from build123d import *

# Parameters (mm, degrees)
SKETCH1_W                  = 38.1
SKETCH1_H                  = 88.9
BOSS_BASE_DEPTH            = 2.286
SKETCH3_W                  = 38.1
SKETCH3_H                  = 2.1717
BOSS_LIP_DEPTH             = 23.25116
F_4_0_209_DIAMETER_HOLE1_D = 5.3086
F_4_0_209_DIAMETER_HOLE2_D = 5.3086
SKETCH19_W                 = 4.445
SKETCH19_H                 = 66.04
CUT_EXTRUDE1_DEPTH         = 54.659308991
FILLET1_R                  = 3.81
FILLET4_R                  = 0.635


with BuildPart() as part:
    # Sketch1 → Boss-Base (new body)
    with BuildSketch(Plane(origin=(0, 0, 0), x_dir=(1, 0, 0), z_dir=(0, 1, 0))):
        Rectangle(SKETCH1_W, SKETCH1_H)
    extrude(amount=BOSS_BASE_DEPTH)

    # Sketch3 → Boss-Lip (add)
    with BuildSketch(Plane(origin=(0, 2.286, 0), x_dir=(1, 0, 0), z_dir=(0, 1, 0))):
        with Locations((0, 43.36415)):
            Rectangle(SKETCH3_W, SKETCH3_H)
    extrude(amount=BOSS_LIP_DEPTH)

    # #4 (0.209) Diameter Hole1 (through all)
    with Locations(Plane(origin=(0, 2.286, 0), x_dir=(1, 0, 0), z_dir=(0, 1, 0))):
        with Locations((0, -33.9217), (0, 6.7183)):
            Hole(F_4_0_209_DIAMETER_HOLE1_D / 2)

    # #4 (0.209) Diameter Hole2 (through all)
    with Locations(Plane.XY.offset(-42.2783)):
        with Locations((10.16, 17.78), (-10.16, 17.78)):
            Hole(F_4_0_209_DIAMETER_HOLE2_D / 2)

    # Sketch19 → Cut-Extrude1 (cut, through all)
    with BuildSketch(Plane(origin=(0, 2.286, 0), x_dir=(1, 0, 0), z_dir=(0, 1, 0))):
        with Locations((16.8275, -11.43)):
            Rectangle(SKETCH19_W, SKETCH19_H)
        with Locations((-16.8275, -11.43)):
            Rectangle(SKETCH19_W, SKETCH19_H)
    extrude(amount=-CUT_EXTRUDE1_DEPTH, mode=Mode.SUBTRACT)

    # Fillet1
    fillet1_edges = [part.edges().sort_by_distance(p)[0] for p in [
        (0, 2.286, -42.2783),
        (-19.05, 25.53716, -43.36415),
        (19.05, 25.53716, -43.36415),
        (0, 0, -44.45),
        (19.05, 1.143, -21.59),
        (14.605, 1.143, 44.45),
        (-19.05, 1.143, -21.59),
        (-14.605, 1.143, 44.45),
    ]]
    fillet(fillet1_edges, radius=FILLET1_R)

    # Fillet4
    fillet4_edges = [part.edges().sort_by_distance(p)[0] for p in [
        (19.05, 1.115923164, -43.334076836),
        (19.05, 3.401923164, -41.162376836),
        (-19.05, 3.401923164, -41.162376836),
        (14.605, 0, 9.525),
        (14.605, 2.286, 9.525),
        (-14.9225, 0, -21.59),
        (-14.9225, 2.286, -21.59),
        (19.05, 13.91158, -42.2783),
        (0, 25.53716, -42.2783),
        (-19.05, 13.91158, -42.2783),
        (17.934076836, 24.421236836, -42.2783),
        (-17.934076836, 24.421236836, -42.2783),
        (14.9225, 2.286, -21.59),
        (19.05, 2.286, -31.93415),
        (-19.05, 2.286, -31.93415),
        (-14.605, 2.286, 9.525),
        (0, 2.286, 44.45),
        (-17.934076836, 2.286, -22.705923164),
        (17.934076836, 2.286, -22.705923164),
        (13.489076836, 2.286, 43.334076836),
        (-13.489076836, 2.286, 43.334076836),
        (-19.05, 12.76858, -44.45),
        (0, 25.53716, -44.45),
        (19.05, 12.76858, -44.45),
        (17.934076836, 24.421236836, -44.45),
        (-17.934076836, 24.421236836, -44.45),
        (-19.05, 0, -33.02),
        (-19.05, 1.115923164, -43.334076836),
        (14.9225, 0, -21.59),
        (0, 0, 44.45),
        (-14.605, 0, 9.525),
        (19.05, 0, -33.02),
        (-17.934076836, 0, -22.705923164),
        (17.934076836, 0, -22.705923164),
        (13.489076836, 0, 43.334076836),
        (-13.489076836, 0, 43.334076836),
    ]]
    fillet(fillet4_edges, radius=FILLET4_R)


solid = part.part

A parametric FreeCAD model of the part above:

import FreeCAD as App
import Part
import Sketcher
Q = App.Units.Quantity


def edges_at(feature, points):
    """Names of the edges that pass closest to the given points."""
    edges = feature.Shape.Edges
    near = lambda p: min(range(len(edges)), key=lambda i: edges[i].distToShape(Part.Vertex(*p))[0])
    return sorted({f"Edge{near(p) + 1}" for p in points})


def add_polygon(sketch, points):
    """Adds a closed chain of lines whose ends are joined by coincident constraints."""
    first, n = sketch.GeometryCount, len(points)
    for a, b in zip(points, points[1:] + points[:1]):
        sketch.addGeometry(Part.LineSegment(App.Vector(*a, 0), App.Vector(*b, 0)), False)
    for i in range(n):
        sketch.addConstraint(Sketcher.Constraint("Coincident", first + i, 2, first + (i + 1) % n, 1))

doc = App.newDocument("Part")
body = doc.addObject("PartDesign::Body", "Body")

# Sketch on XZ plane
sketch1 = doc.addObject("Sketcher::SketchObject", "Sketch")
body.addObject(sketch1)
sketch1.AttachmentSupport = (doc.XZ_Plane, [""])
sketch1.MapMode = "FlatFace"
add_polygon(sketch1, [(-19, -44), (-19, 44), (19, 44), (19, -44)])  # lines 0-3
sketch1.addConstraint(Sketcher.Constraint("Vertical", 0))
sketch1.addConstraint(Sketcher.Constraint("Horizontal", 1))
sketch1.addConstraint(Sketcher.Constraint("Vertical", 2))
sketch1.addConstraint(Sketcher.Constraint("Horizontal", 3))
sketch1.addConstraint(Sketcher.Constraint("Symmetric", 0, 2, 2, 2, -1, 1))
sketch1.addConstraint(Sketcher.Constraint("DistanceX", 1, 1, 1, 2, Q("1.5 in")))
sketch1.addConstraint(Sketcher.Constraint("DistanceY", 0, 1, 0, 2, Q("3.5 in")))
pad1 = doc.addObject("PartDesign::Pad", "Pad")
body.addObject(pad1)
pad1.Profile = sketch1
pad1.Length = Q("0.09 in")
pad1.Reversed = True

# Sketch on XZ plane
sketch2 = doc.addObject("Sketcher::SketchObject", "Sketch001")
body.addObject(sketch2)
sketch2.AttachmentSupport = (doc.XZ_Plane, [""])
sketch2.MapMode = "FlatFace"
sketch2.AttachmentOffset = App.Placement(App.Vector(0, 0, -0.09 * 25.4), App.Rotation())
add_polygon(sketch2, [(-19.1, -44.5), (-19.1, -42.3), (19.1, -42.3), (19.1, -44.5)])  # lines 0-3
sketch2.addConstraint(Sketcher.Constraint("Vertical", 0))
sketch2.addConstraint(Sketcher.Constraint("Horizontal", 1))
sketch2.addConstraint(Sketcher.Constraint("Vertical", 2))
sketch2.addConstraint(Sketcher.Constraint("Horizontal", 3))
sketch2.addConstraint(Sketcher.Constraint("DistanceX", 1, 1, 1, 2, Q("1.5 in")))
sketch2.addConstraint(Sketcher.Constraint("DistanceX", 0, 2, -1, 1, Q("0.75 in")))
sketch2.addConstraint(Sketcher.Constraint("DistanceY", 2, 2, -1, 1, Q("1.75 in")))
sketch2.addConstraint(Sketcher.Constraint("DistanceY", 0, 1, 0, 2, Q("0.0855 in")))
pad2 = doc.addObject("PartDesign::Pad", "Pad001")
body.addObject(pad2)
pad2.Profile = sketch2
pad2.Length = Q("0.9154 in")
pad2.Reversed = True

# Sketch on XZ plane
sketch3 = doc.addObject("Sketcher::SketchObject", "Sketch002")
body.addObject(sketch3)
sketch3.AttachmentSupport = (doc.XZ_Plane, [""])
sketch3.MapMode = "FlatFace"
sketch3.AttachmentOffset = App.Placement(App.Vector(0, 0, -0.09 * 25.4), App.Rotation())
sketch3.addGeometry(Part.Circle(App.Vector(0, 33.9, 0), App.Vector(0, 0, 1), 2.7), False)
sketch3.addGeometry(Part.Circle(App.Vector(0, -6.7, 0), App.Vector(0, 0, 1), 2.7), False)
sketch3.addConstraint(Sketcher.Constraint("Equal", 0, 1))
sketch3.addConstraint(Sketcher.Constraint("PointOnObject", 0, 3, -2))
sketch3.addConstraint(Sketcher.Constraint("PointOnObject", 1, 3, -2))
sketch3.addConstraint(Sketcher.Constraint("Diameter", 0, Q("0.209 in")))
sketch3.addConstraint(Sketcher.Constraint("DistanceY", 1, 3, 0, 3, Q("1.6 in")))
sketch3.addConstraint(Sketcher.Constraint("DistanceY", -1, 1, 0, 3, Q("1.3355 in")))
doc.recompute()
hole = doc.addObject("PartDesign::Hole", "Hole")
body.addObject(hole)
hole.Profile = sketch3
hole.ThreadType = "None"
hole.Diameter = Q("0.209 in")
hole.DepthType = "ThroughAll"
hole.Reversed = True

# Sketch on XY plane
sketch4 = doc.addObject("Sketcher::SketchObject", "Sketch003")
body.addObject(sketch4)
sketch4.AttachmentSupport = (doc.XY_Plane, [""])
sketch4.MapMode = "FlatFace"
sketch4.AttachmentOffset = App.Placement(App.Vector(0, 0, -1.6645 * 25.4), App.Rotation())
sketch4.addGeometry(Part.Circle(App.Vector(10.2, 17.8, 0), App.Vector(0, 0, 1), 2.7), False)
sketch4.addGeometry(Part.Circle(App.Vector(-10.2, 17.8, 0), App.Vector(0, 0, 1), 2.7), False)
sketch4.addConstraint(Sketcher.Constraint("Equal", 0, 1))
sketch4.addConstraint(Sketcher.Constraint("Symmetric", 0, 3, 1, 3, -2))
sketch4.addConstraint(Sketcher.Constraint("Diameter", 0, Q("0.209 in")))
sketch4.addConstraint(Sketcher.Constraint("DistanceX", -1, 1, 0, 3, Q("0.4 in")))
sketch4.addConstraint(Sketcher.Constraint("DistanceY", -1, 1, 0, 3, Q("0.7 in")))
doc.recompute()
hole2 = doc.addObject("PartDesign::Hole", "Hole001")
body.addObject(hole2)
hole2.Profile = sketch4
hole2.ThreadType = "None"
hole2.Diameter = Q("0.209 in")
hole2.DepthType = "ThroughAll"

# Sketch on XZ plane
sketch5 = doc.addObject("Sketcher::SketchObject", "Sketch004")
body.addObject(sketch5)
sketch5.AttachmentSupport = (doc.XZ_Plane, [""])
sketch5.MapMode = "FlatFace"
sketch5.AttachmentOffset = App.Placement(App.Vector(0, 0, -0.09 * 25.4), App.Rotation())
add_polygon(sketch5, [(14.6, -21.6), (14.6, 44.5), (19.1, 44.5), (19.1, -21.6)])  # lines 0-3
add_polygon(sketch5, [(-19.1, -21.6), (-19.1, 44.5), (-14.6, 44.5), (-14.6, -21.6)])  # lines 4-7
sketch5.addConstraint(Sketcher.Constraint("Vertical", 0))
sketch5.addConstraint(Sketcher.Constraint("Horizontal", 1))
sketch5.addConstraint(Sketcher.Constraint("Vertical", 2))
sketch5.addConstraint(Sketcher.Constraint("Horizontal", 3))
sketch5.addConstraint(Sketcher.Constraint("Vertical", 4))
sketch5.addConstraint(Sketcher.Constraint("Horizontal", 5))
sketch5.addConstraint(Sketcher.Constraint("Vertical", 6))
sketch5.addConstraint(Sketcher.Constraint("Horizontal", 7))
sketch5.addConstraint(Sketcher.Constraint("Symmetric", 1, 2, 4, 2, -2))
sketch5.addConstraint(Sketcher.Constraint("Symmetric", 3, 2, 6, 2, -2))
sketch5.addConstraint(Sketcher.Constraint("DistanceY", 0, 1, 0, 2, Q("2.6 in")))
sketch5.addConstraint(Sketcher.Constraint("DistanceX", 4, 2, 1, 2, Q("1.5 in")))
sketch5.addConstraint(Sketcher.Constraint("DistanceX", 1, 1, 1, 2, Q("0.175 in")))
sketch5.addConstraint(Sketcher.Constraint("DistanceY", -1, 1, 0, 2, Q("1.75 in")))
pocket1 = doc.addObject("PartDesign::Pocket", "Pocket")
body.addObject(pocket1)
pocket1.Profile = sketch5
pocket1.Type = "ThroughAll"
pocket1.Reversed = True
doc.recompute()

fillet = doc.addObject("PartDesign::Fillet", "Fillet")
body.addObject(fillet)
fillet.Base = (pocket1, edges_at(pocket1, [
    (0, 2.286, -42.278),
    (-19.05, 25.537, -43.364),
    (19.05, 25.537, -43.364),
    (0, 0, -44.45),
    (19.05, 1.143, -21.59),
    (14.605, 1.143, 44.45),
    (-19.05, 1.143, -21.59),
    (-14.605, 1.143, 44.45),
]))
fillet.Radius = Q("0.15 in")
doc.recompute()

fillet2 = doc.addObject("PartDesign::Fillet", "Fillet001")
body.addObject(fillet2)
fillet2.Base = (fillet, edges_at(fillet, [
    (19.05, 1.116, -43.334),
    (19.05, 3.402, -41.162),
    (-19.05, 3.402, -41.162),
    (14.605, 0, 9.525),
    (14.605, 2.286, 9.525),
    (-14.922, 0, -21.59),
    (-14.922, 2.286, -21.59),
    (19.05, 13.912, -42.278),
    (0, 25.537, -42.278),
    (-19.05, 13.912, -42.278),
    (17.934, 24.421, -42.278),
    (-17.934, 24.421, -42.278),
    (14.922, 2.286, -21.59),
    (19.05, 2.286, -31.934),
    (-19.05, 2.286, -31.934),
    (-14.605, 2.286, 9.525),
    (0, 2.286, 44.45),
    (-17.934, 2.286, -22.706),
    (17.934, 2.286, -22.706),
    (13.489, 2.286, 43.334),
    (-13.489, 2.286, 43.334),
    (-19.05, 12.769, -44.45),
    (0, 25.537, -44.45),
    (19.05, 12.769, -44.45),
    (17.934, 24.421, -44.45),
    (-17.934, 24.421, -44.45),
    (-19.05, 0, -33.02),
    (-19.05, 1.116, -43.334),
    (14.922, 0, -21.59),
    (0, 0, 44.45),
    (-14.605, 0, 9.525),
    (19.05, 0, -33.02),
    (-17.934, 0, -22.706),
    (17.934, 0, -22.706),
    (13.489, 0, 43.334),
    (-13.489, 0, 43.334),
]))
fillet2.Radius = Q("0.025 in")

doc.recompute()
